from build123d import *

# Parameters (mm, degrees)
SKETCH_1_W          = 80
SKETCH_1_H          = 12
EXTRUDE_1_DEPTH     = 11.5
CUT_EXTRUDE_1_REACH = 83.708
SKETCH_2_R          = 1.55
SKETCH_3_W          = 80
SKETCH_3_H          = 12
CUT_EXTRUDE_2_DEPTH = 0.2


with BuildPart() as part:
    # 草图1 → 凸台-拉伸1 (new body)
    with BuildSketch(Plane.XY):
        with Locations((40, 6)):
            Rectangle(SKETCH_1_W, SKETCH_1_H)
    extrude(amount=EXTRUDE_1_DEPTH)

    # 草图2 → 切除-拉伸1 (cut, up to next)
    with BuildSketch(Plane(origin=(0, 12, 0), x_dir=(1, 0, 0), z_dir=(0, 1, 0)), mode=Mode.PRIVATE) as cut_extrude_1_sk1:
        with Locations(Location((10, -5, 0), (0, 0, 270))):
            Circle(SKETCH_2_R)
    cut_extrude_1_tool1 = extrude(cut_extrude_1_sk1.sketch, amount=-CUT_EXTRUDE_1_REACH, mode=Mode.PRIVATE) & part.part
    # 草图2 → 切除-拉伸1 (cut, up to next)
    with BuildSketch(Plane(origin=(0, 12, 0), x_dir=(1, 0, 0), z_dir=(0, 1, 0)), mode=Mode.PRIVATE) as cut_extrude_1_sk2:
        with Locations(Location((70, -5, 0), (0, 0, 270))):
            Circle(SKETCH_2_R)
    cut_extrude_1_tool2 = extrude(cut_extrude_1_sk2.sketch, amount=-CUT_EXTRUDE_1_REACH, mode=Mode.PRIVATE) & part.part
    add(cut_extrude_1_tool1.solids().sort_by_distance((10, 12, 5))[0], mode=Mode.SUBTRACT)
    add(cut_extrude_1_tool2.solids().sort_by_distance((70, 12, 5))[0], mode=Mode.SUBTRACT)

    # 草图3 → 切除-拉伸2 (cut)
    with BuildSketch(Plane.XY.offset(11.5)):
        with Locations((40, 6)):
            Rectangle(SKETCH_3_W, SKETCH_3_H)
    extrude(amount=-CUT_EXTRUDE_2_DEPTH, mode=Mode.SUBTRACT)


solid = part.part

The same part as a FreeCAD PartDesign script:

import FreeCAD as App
import Part
import Sketcher
from FreeCAD import Vector


def add_polygon(sketch, points):
    """Adds a closed chain of lines whose ends are joined by coincident constraints."""
    first, n = sketch.GeometryCount, len(points)
    for a, b in zip(points, points[1:] + points[:1]):
        sketch.addGeometry(Part.LineSegment(App.Vector(*a, 0), App.Vector(*b, 0)), False)
    for i in range(n):
        sketch.addConstraint(Sketcher.Constraint("Coincident", first + i, 2, first + (i + 1) % n, 1))

doc = App.newDocument("Part")
body = doc.addObject("PartDesign::Body", "Body")

# Sketch on XY plane
sketch1 = body.newObject("Sketcher::SketchObject", "Sketch")
sketch1.AttachmentSupport = (doc.getObject("XY_Plane"), [""])
sketch1.MapMode = "FlatFace"
add_polygon(sketch1, [(0, 12), (0, 0), (80, 0), (80, 12)])  # lines 0-3
sketch1.addConstraint(Sketcher.Constraint("Vertical", 0))
sketch1.addConstraint(Sketcher.Constraint("Horizontal", 1))
sketch1.addConstraint(Sketcher.Constraint("Vertical", 2))
sketch1.addConstraint(Sketcher.Constraint("Horizontal", 3))
sketch1.addConstraint(Sketcher.Constraint("Coincident", 0, 2, -1, 1))
sketch1.addConstraint(Sketcher.Constraint("DistanceX", 1, 1, 1, 2, 80.0))
sketch1.addConstraint(Sketcher.Constraint("DistanceY", 0, 2, 0, 1, 12.0))
pad1 = body.newObject("PartDesign::Pad", "Pad")
pad1.Profile = sketch1
pad1.Length = 11.5

# Sketch on XZ plane
sketch2 = body.newObject("Sketcher::SketchObject", "Sketch001")
sketch2.AttachmentSupport = (doc.getObject("XZ_Plane"), [""])
sketch2.MapMode = "FlatFace"
sketch2.AttachmentOffset = App.Placement(Vector(0, 0, -12), App.Rotation())
sketch2.addGeometry(Part.Circle(Vector(10, 5, 0), Vector(0, 0, 1), 1.6), False)
sketch2.addConstraint(Sketcher.Constraint("Diameter", 0, 3.1))
sketch2.addConstraint(Sketcher.Constraint("DistanceX", -1, 1, 0, 3, 10.0))
sketch2.addConstraint(Sketcher.Constraint("DistanceY", -1, 1, 0, 3, 5.0))
pocket1 = body.newObject("PartDesign::Pocket", "Pocket")
pocket1.Profile = sketch2
pocket1.Type = "UpToFirst"
pocket1.Reversed = True

# Sketch on XZ plane
sketch3 = body.newObject("Sketcher::SketchObject", "Sketch002")
sketch3.AttachmentSupport = (doc.getObject("XZ_Plane"), [""])
sketch3.MapMode = "FlatFace"
sketch3.AttachmentOffset = App.Placement(Vector(0, 0, -12), App.Rotation())
sketch3.addGeometry(Part.Circle(Vector(70, 5, 0), Vector(0, 0, 1), 1.6), False)
sketch3.addConstraint(Sketcher.Constraint("Diameter", 0, 3.1))
sketch3.addConstraint(Sketcher.Constraint("DistanceX", -1, 1, 0, 3, 70.0))
sketch3.addConstraint(Sketcher.Constraint("DistanceY", -1, 1, 0, 3, 5.0))
pocket2 = body.newObject("PartDesign::Pocket", "Pocket001")
pocket2.Profile = sketch3
pocket2.Type = "UpToFirst"
pocket2.Reversed = True

# Sketch on XY plane
sketch4 = body.newObject("Sketcher::SketchObject", "Sketch003")
sketch4.AttachmentSupport = (doc.getObject("XY_Plane"), [""])
sketch4.MapMode = "FlatFace"
sketch4.AttachmentOffset = App.Placement(Vector(0, 0, 11.5), App.Rotation())
add_polygon(sketch4, [(0, 12), (0, 0), (80, 0), (80, 12)])  # lines 0-3
sketch4.addConstraint(Sketcher.Constraint("Vertical", 0))
sketch4.addConstraint(Sketcher.Constraint("Horizontal", 1))
sketch4.addConstraint(Sketcher.Constraint("Vertical", 2))
sketch4.addConstraint(Sketcher.Constraint("Horizontal", 3))
sketch4.addConstraint(Sketcher.Constraint("Coincident", 0, 2, -1, 1))
sketch4.addConstraint(Sketcher.Constraint("DistanceX", 1, 1, 1, 2, 80.0))
sketch4.addConstraint(Sketcher.Constraint("DistanceY", 0, 2, 0, 1, 12.0))
pocket3 = body.newObject("PartDesign::Pocket", "Pocket002")
pocket3.Profile = sketch4
pocket3.Length = 0.2

doc.recompute()
